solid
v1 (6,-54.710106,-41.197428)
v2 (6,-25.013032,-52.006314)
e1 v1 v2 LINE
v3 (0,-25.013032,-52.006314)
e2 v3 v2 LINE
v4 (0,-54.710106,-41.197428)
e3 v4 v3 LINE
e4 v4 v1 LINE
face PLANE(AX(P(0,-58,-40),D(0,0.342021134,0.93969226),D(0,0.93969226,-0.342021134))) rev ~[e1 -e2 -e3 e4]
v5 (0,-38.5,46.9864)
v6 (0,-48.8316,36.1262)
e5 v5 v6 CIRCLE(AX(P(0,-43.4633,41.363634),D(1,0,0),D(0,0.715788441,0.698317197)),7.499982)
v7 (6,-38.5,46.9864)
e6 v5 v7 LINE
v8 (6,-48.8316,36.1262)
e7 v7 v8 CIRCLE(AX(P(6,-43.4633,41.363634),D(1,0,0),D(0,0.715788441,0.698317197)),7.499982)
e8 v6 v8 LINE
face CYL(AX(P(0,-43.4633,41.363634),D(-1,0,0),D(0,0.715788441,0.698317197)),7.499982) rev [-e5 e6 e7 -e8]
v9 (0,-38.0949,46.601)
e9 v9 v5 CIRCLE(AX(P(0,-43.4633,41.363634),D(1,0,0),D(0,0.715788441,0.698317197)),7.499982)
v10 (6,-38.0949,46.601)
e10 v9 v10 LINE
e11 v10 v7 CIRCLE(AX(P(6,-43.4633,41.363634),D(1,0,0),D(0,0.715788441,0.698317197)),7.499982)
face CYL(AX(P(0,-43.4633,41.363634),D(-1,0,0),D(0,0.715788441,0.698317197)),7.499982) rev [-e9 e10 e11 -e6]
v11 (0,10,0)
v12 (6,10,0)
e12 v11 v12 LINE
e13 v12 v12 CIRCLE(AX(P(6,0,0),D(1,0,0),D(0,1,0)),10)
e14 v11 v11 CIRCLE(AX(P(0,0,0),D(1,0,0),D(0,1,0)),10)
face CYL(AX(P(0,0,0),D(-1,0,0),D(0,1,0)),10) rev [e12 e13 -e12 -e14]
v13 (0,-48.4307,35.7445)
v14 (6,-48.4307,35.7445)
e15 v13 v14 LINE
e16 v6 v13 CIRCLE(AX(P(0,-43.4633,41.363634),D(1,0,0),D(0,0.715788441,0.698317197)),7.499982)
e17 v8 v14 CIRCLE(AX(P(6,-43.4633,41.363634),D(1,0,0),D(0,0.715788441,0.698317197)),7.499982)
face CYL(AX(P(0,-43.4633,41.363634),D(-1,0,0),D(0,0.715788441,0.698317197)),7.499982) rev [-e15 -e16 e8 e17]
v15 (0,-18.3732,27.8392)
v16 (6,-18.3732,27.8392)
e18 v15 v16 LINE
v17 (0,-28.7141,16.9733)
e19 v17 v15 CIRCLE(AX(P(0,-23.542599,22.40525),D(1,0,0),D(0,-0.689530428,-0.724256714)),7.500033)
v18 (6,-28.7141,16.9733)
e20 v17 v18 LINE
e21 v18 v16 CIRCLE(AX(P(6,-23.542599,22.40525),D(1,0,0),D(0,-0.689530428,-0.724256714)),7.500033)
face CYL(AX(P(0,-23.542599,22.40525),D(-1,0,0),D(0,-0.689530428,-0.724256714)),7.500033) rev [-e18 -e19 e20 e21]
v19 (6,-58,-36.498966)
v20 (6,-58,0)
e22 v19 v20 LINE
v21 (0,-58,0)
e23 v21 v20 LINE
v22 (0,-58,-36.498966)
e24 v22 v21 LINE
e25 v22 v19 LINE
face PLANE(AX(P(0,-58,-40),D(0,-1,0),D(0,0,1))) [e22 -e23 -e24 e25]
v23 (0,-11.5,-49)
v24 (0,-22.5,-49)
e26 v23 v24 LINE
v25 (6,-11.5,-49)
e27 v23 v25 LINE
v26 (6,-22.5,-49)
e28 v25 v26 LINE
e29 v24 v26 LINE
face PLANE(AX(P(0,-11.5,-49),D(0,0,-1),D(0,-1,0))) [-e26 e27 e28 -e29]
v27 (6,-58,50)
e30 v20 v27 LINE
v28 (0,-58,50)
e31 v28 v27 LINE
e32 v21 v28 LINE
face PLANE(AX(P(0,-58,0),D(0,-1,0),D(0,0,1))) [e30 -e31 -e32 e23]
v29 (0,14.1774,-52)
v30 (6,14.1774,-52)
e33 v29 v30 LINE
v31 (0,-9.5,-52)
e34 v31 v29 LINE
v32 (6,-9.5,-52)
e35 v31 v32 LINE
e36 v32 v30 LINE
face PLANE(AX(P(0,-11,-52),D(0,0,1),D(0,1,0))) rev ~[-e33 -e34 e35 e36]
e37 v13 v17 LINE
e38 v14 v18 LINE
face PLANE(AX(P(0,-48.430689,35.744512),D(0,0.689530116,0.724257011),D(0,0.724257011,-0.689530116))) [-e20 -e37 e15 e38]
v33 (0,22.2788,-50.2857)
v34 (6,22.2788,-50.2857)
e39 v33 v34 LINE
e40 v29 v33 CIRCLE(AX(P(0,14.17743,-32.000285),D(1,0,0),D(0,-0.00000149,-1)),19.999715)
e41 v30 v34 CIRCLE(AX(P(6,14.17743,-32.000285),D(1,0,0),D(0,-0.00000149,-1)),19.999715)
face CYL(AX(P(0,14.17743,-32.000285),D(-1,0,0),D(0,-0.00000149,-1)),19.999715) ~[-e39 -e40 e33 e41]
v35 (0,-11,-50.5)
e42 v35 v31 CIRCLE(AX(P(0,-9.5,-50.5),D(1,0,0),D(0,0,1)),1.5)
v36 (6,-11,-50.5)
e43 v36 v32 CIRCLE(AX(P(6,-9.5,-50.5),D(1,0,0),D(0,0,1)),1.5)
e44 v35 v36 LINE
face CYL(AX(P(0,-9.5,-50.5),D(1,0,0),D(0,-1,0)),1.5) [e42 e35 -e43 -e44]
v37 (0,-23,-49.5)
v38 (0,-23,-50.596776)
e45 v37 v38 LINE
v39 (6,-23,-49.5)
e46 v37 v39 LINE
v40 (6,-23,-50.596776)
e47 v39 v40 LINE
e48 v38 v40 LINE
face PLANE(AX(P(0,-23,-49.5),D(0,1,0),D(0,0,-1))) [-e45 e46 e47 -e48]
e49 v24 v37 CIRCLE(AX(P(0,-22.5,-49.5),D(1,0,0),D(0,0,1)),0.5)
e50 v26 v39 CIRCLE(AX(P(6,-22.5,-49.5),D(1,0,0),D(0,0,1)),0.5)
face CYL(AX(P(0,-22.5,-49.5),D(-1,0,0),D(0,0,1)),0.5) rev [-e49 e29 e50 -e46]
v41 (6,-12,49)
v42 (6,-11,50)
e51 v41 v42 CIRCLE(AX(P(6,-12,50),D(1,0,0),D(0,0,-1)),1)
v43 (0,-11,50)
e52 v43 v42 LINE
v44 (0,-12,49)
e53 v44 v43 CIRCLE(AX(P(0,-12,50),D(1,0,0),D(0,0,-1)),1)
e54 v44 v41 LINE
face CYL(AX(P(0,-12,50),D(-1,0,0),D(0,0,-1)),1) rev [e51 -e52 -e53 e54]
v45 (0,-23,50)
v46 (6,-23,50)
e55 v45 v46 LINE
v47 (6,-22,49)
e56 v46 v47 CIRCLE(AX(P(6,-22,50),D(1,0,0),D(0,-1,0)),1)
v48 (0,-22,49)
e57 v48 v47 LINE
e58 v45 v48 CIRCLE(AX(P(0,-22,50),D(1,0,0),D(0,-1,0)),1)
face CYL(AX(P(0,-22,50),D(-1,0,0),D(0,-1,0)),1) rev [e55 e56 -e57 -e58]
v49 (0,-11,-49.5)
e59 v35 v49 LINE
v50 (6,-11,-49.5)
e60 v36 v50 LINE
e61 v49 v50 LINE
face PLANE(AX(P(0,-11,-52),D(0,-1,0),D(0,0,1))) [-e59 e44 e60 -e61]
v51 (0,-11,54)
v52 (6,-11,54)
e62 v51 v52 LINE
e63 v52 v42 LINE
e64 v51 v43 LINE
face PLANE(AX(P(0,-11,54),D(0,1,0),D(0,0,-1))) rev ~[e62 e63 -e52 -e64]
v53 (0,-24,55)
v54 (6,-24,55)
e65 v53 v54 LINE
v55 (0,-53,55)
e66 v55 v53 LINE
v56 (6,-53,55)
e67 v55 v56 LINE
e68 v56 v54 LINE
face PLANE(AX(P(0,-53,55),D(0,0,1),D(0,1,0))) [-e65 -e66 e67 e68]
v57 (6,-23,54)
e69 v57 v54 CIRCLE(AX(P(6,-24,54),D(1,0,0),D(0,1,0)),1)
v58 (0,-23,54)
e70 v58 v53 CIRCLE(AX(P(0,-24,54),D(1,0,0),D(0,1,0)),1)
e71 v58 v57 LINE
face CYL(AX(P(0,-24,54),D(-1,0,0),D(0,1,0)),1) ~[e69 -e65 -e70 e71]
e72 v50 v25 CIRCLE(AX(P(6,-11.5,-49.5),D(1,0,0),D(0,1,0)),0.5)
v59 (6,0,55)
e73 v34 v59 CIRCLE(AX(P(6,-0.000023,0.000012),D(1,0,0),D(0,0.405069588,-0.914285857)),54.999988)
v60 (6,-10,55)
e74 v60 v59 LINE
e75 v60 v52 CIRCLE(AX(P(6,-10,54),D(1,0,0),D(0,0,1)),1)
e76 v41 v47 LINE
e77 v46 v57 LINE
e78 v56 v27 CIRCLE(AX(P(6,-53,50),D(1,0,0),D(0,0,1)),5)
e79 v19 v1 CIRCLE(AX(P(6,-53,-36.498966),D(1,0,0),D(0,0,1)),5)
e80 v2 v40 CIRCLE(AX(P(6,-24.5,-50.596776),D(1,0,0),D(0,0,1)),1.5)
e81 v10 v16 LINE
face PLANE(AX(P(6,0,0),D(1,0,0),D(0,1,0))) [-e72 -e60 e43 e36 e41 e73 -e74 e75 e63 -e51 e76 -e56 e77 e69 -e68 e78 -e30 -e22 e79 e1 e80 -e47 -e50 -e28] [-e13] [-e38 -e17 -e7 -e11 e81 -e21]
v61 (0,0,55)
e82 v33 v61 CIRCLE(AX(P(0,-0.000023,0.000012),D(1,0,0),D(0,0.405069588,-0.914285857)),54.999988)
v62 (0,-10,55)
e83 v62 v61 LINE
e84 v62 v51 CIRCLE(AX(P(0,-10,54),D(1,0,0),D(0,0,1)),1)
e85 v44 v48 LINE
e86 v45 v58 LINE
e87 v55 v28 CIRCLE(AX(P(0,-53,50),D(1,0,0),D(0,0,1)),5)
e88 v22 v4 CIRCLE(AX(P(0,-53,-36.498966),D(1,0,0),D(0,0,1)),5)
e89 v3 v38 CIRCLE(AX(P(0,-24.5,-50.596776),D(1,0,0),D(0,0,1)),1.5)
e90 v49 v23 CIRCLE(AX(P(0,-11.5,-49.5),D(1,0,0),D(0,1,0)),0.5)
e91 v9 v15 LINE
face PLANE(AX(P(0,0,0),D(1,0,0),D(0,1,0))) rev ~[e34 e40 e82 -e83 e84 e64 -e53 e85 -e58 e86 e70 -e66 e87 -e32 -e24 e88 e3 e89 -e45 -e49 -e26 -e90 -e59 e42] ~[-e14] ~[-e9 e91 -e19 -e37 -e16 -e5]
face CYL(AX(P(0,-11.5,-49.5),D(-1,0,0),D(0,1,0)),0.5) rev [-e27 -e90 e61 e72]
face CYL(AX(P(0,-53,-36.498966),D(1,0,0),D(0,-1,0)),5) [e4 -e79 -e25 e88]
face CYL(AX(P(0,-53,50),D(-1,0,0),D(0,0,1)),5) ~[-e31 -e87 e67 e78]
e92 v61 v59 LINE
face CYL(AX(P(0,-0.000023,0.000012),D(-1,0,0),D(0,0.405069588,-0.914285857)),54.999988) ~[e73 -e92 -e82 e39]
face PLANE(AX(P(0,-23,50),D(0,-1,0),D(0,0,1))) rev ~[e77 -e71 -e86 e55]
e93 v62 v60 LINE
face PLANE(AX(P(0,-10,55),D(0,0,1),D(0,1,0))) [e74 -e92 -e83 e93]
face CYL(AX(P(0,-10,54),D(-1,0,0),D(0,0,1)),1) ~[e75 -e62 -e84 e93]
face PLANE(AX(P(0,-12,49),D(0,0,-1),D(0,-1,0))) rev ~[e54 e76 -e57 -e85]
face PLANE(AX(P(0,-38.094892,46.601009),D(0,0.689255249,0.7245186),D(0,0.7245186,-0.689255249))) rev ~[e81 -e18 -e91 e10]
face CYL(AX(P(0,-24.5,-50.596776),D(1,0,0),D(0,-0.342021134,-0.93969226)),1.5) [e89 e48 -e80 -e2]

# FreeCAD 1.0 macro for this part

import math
import FreeCAD as App
import Part
import Sketcher

V = App.Vector


def edges_at(feature, points):
    """Names of the edges that pass closest to the given points."""
    edges = feature.Shape.Edges
    near = lambda p: min(range(len(edges)), key=lambda i: edges[i].distToShape(Part.Vertex(*p))[0])
    return sorted({f"Edge{near(p) + 1}" for p in points})

doc = App.newDocument("Part")
params = doc.addObject("Spreadsheet::Sheet", "Params")
for row, (alias, value) in enumerate([
    ("sketch1_diameter", "20 mm"),
    ("sketch1_radius", "20 mm"),
    ("sketch1_radius2", "55 mm"),
    ("sketch1_radius3", "1 mm"),
    ("sketch1_radius4", "1 mm"),
    ("pad1_length", "6 mm"),
    ("fillet_radius", "5 mm"),
    ("fillet2_radius", "1.5 mm"),
], start=1):
    params.set(f"A{row}", alias)
    params.set(f"B{row}", "=" + value)
    params.setAlias(f"B{row}", alias)

body = doc.addObject("PartDesign::Body", "Body")

sketch1 = body.newObject("Sketcher::SketchObject", "Sketch")
sketch1.AttachmentSupport = (doc.getObject("YZ_Plane"), [""])
sketch1.MapMode = "FlatFace"
sketch1.addGeometry([
    Part.LineSegment(V(-58, 50, 0), V(-58, -40, 0)),
    Part.LineSegment(V(-58, -40, 0), V(-23, -52.739, 0)),
    Part.LineSegment(V(-23, -52.739, 0), V(-23, -49.5, 0)),
    Part.ArcOfCircle(Part.Circle(V(-22.5, -49.5, 0), V(0, 0, 1), 0.5), math.radians(90), math.radians(180)),
    Part.LineSegment(V(-22.5, -49, 0), V(-11.5, -49, 0)),
    Part.ArcOfCircle(Part.Circle(V(-11.5, -49.5, 0), V(0, 0, 1), 0.5), math.radians(0), math.radians(90)),
    Part.LineSegment(V(-11, -49.5, 0), V(-11, -52, 0)),
    Part.LineSegment(V(-11, -52, 0), V(14.1774, -52, 0)),
    Part.ArcOfCircle(Part.Circle(V(14.1774, -32, 0), V(0, 0, 1), 20), math.radians(-90), math.radians(-66.104471)),
    Part.ArcOfCircle(Part.Circle(V(0, 0, 0), V(0, 0, 1), 54.999969), math.radians(-66.104529), math.radians(90)),
    Part.LineSegment(V(0, 55, 0), V(-10, 55, 0)),
    Part.ArcOfCircle(Part.Circle(V(-10, 54, 0), V(0, 0, 1), 1), math.radians(90), math.radians(180)),
    Part.LineSegment(V(-11, 54, 0), V(-11, 50, 0)),
    Part.ArcOfCircle(Part.Circle(V(-12, 50, 0), V(0, 0, 1), 1), math.radians(-90), math.radians(0)),
    Part.LineSegment(V(-12, 49, 0), V(-22, 49, 0)),
    Part.ArcOfCircle(Part.Circle(V(-22, 50, 0), V(0, 0, 1), 1), math.radians(180), math.radians(270)),
    Part.LineSegment(V(-23, 50, 0), V(-23, 54, 0)),
    Part.ArcOfCircle(Part.Circle(V(-24, 54, 0), V(0, 0, 1), 1), math.radians(0), math.radians(90)),
    Part.LineSegment(V(-24, 55, 0), V(-53, 55, 0)),
    Part.ArcOfCircle(Part.Circle(V(-53, 50, 0), V(0, 0, 1), 5), math.radians(90), math.radians(180)),
    Part.Circle(V(0, 0, 0), V(0, 0, 1), 10),
    Part.ArcOfCircle(Part.Circle(V(-23.5426, 22.4053, 0), V(0, 0, 1), 7.500069), math.radians(-133.592677), math.radians(46.428951)),
    Part.LineSegment(V(-28.7141, 16.9733, 0), V(-48.430689, 35.744512, 0)),
    Part.ArcOfCircle(Part.Circle(V(-43.4633, 41.3636, 0), V(0, 0, 1), 7.500005), math.radians(44.292334), math.radians(228.522656)),
    Part.LineSegment(V(-38.094892, 46.601009, 0), V(-18.3732, 27.8392, 0)),
], False)
sketch1.addConstraint([
    Sketcher.Constraint("Coincident", 0, 2, 1, 1),
    Sketcher.Constraint("Coincident", 1, 2, 2, 1),
    Sketcher.Constraint("Coincident", 2, 2, 3, 2),
    Sketcher.Constraint("Coincident", 3, 1, 4, 1),
    Sketcher.Constraint("Coincident", 4, 2, 5, 2),
    Sketcher.Constraint("Coincident", 5, 1, 6, 1),
    Sketcher.Constraint("Coincident", 6, 2, 7, 1),
    Sketcher.Constraint("Coincident", 7, 2, 8, 1),
    Sketcher.Constraint("Coincident", 8, 2, 9, 1),
    Sketcher.Constraint("Coincident", 9, 2, 10, 1),
    Sketcher.Constraint("Coincident", 10, 2, 11, 1),
    Sketcher.Constraint("Coincident", 11, 2, 12, 1),
    Sketcher.Constraint("Coincident", 12, 2, 13, 2),
    Sketcher.Constraint("Coincident", 13, 1, 14, 1),
    Sketcher.Constraint("Coincident", 14, 2, 15, 2),
    Sketcher.Constraint("Coincident", 15, 1, 16, 1),
    Sketcher.Constraint("Coincident", 16, 2, 17, 1),
    Sketcher.Constraint("Coincident", 17, 2, 18, 1),
    Sketcher.Constraint("Coincident", 18, 2, 19, 1),
    Sketcher.Constraint("Coincident", 19, 2, 0, 1),
    Sketcher.Constraint("Coincident", 21, 1, 22, 1),
    Sketcher.Constraint("Coincident", 22, 2, 23, 2),
    Sketcher.Constraint("Coincident", 23, 1, 24, 1),
    Sketcher.Constraint("Coincident", 24, 2, 21, 2),
    Sketcher.Constraint("Vertical", 0),
    Sketcher.Constraint("Vertical", 2),
    Sketcher.Constraint("Horizontal", 4),
    Sketcher.Constraint("Vertical", 6),
    Sketcher.Constraint("Horizontal", 7),
    Sketcher.Constraint("Horizontal", 10),
    Sketcher.Constraint("Vertical", 12),
    Sketcher.Constraint("Horizontal", 14),
    Sketcher.Constraint("Vertical", 16),
    Sketcher.Constraint("Horizontal", 18),
    Sketcher.Constraint("Coincident", 9, 3, -1, 1),
    Sketcher.Constraint("Coincident", 20, 3, -1, 1),
    Sketcher.Constraint("PointOnObject", 9, 2, -2),
    Sketcher.Constraint("Diameter", 20, 20.0),
    Sketcher.Constraint("Radius", 8, 20.0),
    Sketcher.Constraint("Radius", 9, 55.0),
    Sketcher.Constraint("Radius", 11, 1.0),
    Sketcher.Constraint("Radius", 13, 1.0),
    Sketcher.Constraint("Radius", 15, 1.0),
    Sketcher.Constraint("Radius", 17, 1.0),
    Sketcher.Constraint("Radius", 19, 5.0),
    Sketcher.Constraint("Radius", 3, 0.5),
    Sketcher.Constraint("Radius", 5, 0.5),
    Sketcher.Constraint("Radius", 21, 7.5),
    Sketcher.Constraint("Radius", 23, 7.5),
    Sketcher.Constraint("DistanceX", 13, 3, -1, 1, 12.0),
    Sketcher.Constraint("DistanceX", 0, 2, -1, 1, 58.0),
    Sketcher.Constraint("DistanceY", 6, 2, -1, 1, 52.0),
    Sketcher.Constraint("DistanceX", 13, 1, -1, 1, 12.0),
    Sketcher.Constraint("DistanceY", -1, 1, 17, 2, 55.0),
    Sketcher.Constraint("DistanceX", 15, 3, 11, 3, 12.0),
    Sketcher.Constraint("DistanceX", 0, 2, 1, 2, 35.0),
    Sketcher.Constraint("DistanceX", 2, 2, 5, 1, 12.0),
    Sketcher.Constraint("DistanceY", 6, 2, 4, 2, 3.0),
    Sketcher.Constraint("DistanceY", 13, 3, 9, 2, 5.0),
    Sketcher.Constraint("DistanceX", 15, 3, 10, 2, 12.0),
    Sketcher.Constraint("DistanceY", 11, 2, 10, 2, 1.0),
    Sketcher.Constraint("DistanceY", 12, 2, 10, 2, 5.0),
    Sketcher.Constraint("DistanceX", 15, 1, 14, 2, 1.0),
    Sketcher.Constraint("DistanceY", 14, 2, 15, 1, 1.0),
    Sketcher.Constraint("DistanceY", 14, 2, 16, 2, 5.0),
    Sketcher.Constraint("DistanceX", 17, 2, 16, 2, 1.0),
    Sketcher.Constraint("DistanceX", 19, 2, 18, 2, 5.0),
    Sketcher.Constraint("DistanceY", 19, 2, 18, 2, 5.0),
    Sketcher.Constraint("DistanceX", 2, 2, 3, 1, 0.5),
    Sketcher.Constraint("DistanceY", 2, 2, 3, 1, 0.5),
    Sketcher.Constraint("DistanceX", 4, 2, 5, 1, 0.5),
    Sketcher.Constraint("DistanceY", 5, 1, 4, 2, 0.5),
    Sketcher.Constraint("DistanceY", 0, 2, 0, 1, 90.0),
    Sketcher.Constraint("DistanceY", 2, 1, 2, 2, 3.239),
    Sketcher.Constraint("DistanceX", 7, 1, 7, 2, 25.1774),
    Sketcher.Constraint("DistanceX", 21, 1, -1, 1, 28.714),
    Sketcher.Constraint("DistanceX", 23, 1, -1, 1, 38.095),
    Sketcher.Constraint("DistanceY", -1, 1, 23, 1, 46.601),
    Sketcher.Constraint("DistanceY", 21, 1, 21, 3, 5.432),
    Sketcher.Constraint("DistanceY", 22, 2, 23, 3, 5.619),
    Sketcher.Constraint("DistanceY", 21, 3, 24, 2, 5.434),
    Sketcher.Constraint("Distance", 22, 27.2232),
    Sketcher.Constraint("Distance", 24, 27.2204),
    Sketcher.Constraint("DistanceX", -1, 1, 8, 2, 22.2788),
])
sketch1.setExpression("Constraints[37]", "Params.sketch1_diameter")
sketch1.setExpression("Constraints[38]", "Params.sketch1_radius")
sketch1.setExpression("Constraints[39]", "Params.sketch1_radius2")
sketch1.setExpression("Constraints[40]", "Params.sketch1_radius3")
sketch1.setExpression("Constraints[41]", "Params.sketch1_radius4")
pad1 = body.newObject("PartDesign::Pad", "Pad")
pad1.Profile = sketch1
pad1.setExpression("Length", "Params.pad1_length")
doc.recompute()

fillet = body.newObject("PartDesign::Fillet", "Fillet")
fillet.Base = (pad1, edges_at(pad1, [(3, -58, -40)]))
fillet.setExpression("Radius", "Params.fillet_radius")
doc.recompute()

fillet2 = body.newObject("PartDesign::Fillet", "Fillet001")
fillet2.Base = (fillet, edges_at(fillet, [(3, -23, -52.739), (3, -11, -52)]))
fillet2.setExpression("Radius", "Params.fillet2_radius")

doc.recompute()
